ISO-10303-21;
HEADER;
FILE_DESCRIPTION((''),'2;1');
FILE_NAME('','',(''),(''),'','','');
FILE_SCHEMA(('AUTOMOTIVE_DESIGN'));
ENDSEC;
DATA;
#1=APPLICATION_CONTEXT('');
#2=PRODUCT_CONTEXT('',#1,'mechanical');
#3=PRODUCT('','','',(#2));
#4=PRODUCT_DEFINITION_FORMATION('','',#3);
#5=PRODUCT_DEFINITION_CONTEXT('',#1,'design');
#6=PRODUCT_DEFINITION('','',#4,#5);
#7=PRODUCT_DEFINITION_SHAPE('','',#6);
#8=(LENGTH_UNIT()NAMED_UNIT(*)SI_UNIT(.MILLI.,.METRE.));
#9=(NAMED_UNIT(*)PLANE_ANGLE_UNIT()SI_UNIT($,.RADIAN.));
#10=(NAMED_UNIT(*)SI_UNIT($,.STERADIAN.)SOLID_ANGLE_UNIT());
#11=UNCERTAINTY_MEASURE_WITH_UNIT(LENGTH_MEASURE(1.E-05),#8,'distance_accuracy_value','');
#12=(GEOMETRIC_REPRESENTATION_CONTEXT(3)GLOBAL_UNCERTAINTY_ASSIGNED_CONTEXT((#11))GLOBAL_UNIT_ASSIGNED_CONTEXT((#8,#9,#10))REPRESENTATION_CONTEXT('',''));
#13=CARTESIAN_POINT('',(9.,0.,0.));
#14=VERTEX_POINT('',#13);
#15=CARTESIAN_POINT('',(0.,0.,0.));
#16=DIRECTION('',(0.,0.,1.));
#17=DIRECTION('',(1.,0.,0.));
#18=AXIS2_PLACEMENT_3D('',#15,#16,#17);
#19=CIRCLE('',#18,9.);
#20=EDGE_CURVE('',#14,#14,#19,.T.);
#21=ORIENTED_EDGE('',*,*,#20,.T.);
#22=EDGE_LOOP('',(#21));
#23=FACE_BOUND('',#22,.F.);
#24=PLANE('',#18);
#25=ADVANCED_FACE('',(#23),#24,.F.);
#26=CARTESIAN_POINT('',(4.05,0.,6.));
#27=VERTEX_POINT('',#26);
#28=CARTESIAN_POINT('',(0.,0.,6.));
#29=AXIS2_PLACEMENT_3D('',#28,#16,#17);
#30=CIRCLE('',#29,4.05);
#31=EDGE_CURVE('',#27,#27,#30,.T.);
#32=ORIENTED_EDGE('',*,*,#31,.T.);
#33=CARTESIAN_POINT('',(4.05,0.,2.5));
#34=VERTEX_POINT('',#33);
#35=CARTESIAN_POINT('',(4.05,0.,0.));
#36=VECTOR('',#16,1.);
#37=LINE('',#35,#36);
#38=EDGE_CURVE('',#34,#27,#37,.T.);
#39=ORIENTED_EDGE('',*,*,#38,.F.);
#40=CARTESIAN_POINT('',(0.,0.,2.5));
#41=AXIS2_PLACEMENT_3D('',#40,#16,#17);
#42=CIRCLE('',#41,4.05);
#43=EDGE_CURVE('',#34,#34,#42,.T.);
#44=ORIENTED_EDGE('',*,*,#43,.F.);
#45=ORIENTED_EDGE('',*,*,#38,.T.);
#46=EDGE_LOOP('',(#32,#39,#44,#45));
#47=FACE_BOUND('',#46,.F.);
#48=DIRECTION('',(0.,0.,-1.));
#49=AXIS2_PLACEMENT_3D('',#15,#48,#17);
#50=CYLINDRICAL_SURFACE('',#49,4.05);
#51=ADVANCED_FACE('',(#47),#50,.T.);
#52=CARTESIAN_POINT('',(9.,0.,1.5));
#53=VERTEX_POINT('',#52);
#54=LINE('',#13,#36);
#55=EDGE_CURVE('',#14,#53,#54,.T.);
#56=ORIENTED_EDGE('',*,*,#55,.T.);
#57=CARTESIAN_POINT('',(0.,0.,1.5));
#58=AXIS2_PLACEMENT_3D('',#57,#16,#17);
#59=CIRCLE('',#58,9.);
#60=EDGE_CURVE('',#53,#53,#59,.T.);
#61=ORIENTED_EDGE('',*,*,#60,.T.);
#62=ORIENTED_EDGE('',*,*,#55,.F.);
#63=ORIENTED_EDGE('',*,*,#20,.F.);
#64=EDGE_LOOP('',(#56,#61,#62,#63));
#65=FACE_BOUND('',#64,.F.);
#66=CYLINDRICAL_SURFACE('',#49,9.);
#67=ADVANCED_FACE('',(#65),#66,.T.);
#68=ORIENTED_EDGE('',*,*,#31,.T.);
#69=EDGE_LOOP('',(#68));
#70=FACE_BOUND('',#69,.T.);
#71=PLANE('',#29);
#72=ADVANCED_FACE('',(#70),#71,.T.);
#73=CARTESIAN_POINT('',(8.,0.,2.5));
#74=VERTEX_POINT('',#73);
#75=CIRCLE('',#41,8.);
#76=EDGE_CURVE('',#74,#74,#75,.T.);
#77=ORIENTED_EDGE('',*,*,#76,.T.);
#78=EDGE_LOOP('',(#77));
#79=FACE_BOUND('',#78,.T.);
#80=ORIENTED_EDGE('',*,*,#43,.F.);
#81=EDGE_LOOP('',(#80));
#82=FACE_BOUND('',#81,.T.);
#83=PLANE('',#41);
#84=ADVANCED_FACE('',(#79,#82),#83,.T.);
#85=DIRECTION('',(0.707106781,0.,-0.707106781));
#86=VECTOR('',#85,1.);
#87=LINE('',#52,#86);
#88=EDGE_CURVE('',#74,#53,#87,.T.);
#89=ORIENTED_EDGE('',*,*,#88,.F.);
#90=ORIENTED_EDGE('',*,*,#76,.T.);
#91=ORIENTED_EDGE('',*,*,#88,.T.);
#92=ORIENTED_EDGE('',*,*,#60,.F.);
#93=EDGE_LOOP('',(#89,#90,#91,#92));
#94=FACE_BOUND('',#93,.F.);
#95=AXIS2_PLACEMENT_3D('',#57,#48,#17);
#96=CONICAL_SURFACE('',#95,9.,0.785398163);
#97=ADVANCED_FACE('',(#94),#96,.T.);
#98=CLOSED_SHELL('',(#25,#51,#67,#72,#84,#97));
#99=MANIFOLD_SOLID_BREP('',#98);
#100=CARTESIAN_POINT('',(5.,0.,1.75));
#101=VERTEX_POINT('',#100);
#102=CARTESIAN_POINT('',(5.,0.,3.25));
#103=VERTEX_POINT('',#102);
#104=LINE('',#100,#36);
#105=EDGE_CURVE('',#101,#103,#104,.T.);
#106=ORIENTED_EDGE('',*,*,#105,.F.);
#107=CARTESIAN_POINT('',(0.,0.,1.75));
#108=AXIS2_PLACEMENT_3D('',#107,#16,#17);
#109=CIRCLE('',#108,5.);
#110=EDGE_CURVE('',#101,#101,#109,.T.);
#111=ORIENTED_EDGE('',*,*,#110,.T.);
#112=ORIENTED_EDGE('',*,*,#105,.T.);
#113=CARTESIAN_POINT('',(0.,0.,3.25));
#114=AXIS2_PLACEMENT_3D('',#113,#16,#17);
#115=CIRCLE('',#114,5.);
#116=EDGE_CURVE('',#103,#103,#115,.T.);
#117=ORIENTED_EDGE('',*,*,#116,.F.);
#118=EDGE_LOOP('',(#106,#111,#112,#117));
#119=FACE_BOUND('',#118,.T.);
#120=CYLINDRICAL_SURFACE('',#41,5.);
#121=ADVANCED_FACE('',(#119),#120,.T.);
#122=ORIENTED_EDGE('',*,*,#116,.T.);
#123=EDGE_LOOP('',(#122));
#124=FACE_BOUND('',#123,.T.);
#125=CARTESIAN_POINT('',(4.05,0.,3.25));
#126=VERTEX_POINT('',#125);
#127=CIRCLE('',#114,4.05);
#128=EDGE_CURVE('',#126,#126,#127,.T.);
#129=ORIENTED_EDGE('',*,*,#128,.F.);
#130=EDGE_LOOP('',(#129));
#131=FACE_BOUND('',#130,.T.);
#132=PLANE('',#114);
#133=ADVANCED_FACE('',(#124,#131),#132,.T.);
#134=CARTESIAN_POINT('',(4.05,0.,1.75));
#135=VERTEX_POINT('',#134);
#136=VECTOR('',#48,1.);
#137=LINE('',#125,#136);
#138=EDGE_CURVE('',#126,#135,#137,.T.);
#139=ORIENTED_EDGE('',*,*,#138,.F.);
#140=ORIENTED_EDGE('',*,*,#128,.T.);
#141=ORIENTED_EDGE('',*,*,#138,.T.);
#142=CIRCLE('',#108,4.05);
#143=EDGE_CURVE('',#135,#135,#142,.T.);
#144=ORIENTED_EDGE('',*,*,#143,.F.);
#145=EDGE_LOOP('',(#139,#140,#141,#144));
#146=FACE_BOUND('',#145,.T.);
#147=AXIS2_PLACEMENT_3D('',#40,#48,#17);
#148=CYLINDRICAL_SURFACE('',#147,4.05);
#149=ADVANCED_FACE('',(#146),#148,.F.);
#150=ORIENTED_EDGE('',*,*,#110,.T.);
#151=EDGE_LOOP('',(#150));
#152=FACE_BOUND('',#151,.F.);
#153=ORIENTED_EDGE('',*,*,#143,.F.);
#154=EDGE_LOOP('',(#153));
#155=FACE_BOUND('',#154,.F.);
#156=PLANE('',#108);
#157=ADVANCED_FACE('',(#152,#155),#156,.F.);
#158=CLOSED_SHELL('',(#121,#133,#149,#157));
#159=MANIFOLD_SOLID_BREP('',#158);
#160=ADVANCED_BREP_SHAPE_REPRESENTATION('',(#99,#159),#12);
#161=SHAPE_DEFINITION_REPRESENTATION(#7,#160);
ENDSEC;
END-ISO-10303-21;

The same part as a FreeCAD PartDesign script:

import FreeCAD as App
import Part
import Sketcher
from FreeCAD import Vector
Q = App.Units.Quantity


def edges_at(feature, points):
    """Names of the edges that pass closest to the given points."""
    edges = feature.Shape.Edges
    near = lambda p: min(range(len(edges)), key=lambda i: edges[i].distToShape(Part.Vertex(*p))[0])
    return sorted({f"Edge{near(p) + 1}" for p in points})

doc = App.newDocument("Part")
body = doc.addObject("PartDesign::Body", "Body")

# Sketch on XY plane
sketch1 = body.newObject("Sketcher::SketchObject", "Sketch")
sketch1.AttachmentSupport = (doc.getObject("XY_Plane"), [""])
sketch1.MapMode = "FlatFace"
sketch1.addGeometry([
    Part.Circle(Vector(0, 0, 0), Vector(0, 0, 1), 9),
    Part.Circle(Vector(0, 0, 0), Vector(0, 0, 1), 4),
], False)
sketch1.addConstraint([
    Sketcher.Constraint("Coincident", 0, 3, -1, 1),
    Sketcher.Constraint("Coincident", 1, 3, -1, 1),
    Sketcher.Constraint("Diameter", 0, Q("18 mm")),
    Sketcher.Constraint("Diameter", 1, Q("8.1 mm")),
])
pad1 = body.newObject("PartDesign::Pad", "Pad")
pad1.Profile = sketch1
pad1.Length = 2.5

# Sketch on XY plane
sketch2 = body.newObject("Sketcher::SketchObject", "Sketch001")
sketch2.AttachmentSupport = (doc.getObject("XY_Plane"), [""])
sketch2.MapMode = "FlatFace"
sketch2.addGeometry(Part.Circle(Vector(0, 0, 0), Vector(0, 0, 1), 4), False)
sketch2.addConstraint([
    Sketcher.Constraint("Coincident", 0, 3, -1, 1),
    Sketcher.Constraint("Diameter", 0, Q("8.1 mm")),
])
pad2 = body.newObject("PartDesign::Pad", "Pad001")
pad2.Profile = sketch2
pad2.Length = 6
doc.recompute()

chamfer = body.newObject("PartDesign::Chamfer", "Chamfer")
chamfer.Base = (pad2, edges_at(pad2, [(-9, 0, 2.5)]))
chamfer.Size = 1
body2 = doc.addObject("PartDesign::Body", "Body001")

# Sketch on XY plane
sketch3 = body2.newObject("Sketcher::SketchObject", "Sketch002")
sketch3.AttachmentSupport = (doc.getObject("XY_Plane001"), [""])
sketch3.MapMode = "FlatFace"
sketch3.AttachmentOffset = App.Placement(Vector(0, 0, 2.5), App.Rotation())
sketch3.addGeometry([
    Part.Circle(Vector(0, 0, 0), Vector(0, 0, 1), 5),
    Part.Circle(Vector(0, 0, 0), Vector(0, 0, 1), 4),
], False)
sketch3.addConstraint([
    Sketcher.Constraint("Coincident", 0, 3, -1, 1),
    Sketcher.Constraint("Coincident", 1, 3, -1, 1),
    Sketcher.Constraint("Diameter", 0, Q("10 mm")),
    Sketcher.Constraint("Diameter", 1, Q("8.1 mm")),
])
pad3 = body2.newObject("PartDesign::Pad", "Pad002")
pad3.Profile = sketch3
pad3.Length = 1.5
pad3.Midplane = True

doc.recompute()
